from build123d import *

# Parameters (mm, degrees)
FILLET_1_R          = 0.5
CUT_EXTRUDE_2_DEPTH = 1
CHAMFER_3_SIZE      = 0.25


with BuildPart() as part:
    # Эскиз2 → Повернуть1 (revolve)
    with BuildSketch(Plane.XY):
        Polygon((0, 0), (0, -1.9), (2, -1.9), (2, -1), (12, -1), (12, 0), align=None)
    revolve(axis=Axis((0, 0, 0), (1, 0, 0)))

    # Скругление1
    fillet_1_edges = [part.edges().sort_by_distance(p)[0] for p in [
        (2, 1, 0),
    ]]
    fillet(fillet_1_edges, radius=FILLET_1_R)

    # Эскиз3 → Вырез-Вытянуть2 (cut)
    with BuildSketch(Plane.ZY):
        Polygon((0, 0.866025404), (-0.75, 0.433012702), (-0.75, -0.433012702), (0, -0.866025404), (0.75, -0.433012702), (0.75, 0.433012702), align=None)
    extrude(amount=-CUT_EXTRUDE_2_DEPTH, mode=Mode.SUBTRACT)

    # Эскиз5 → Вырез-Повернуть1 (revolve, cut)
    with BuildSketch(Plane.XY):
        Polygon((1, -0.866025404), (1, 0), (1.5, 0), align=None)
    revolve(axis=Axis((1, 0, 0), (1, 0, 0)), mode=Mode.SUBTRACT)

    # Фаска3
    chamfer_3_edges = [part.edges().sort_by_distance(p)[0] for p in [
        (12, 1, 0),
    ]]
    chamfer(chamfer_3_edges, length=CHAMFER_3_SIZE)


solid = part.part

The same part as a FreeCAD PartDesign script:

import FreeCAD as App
import Part
import Sketcher
from FreeCAD import Vector
Q = App.Units.Quantity


def edges_at(feature, points):
    """Names of the edges that pass closest to the given points."""
    edges = feature.Shape.Edges
    near = lambda p: min(range(len(edges)), key=lambda i: edges[i].distToShape(Part.Vertex(*p))[0])
    return sorted({f"Edge{near(p) + 1}" for p in points})


def add_polygon(sketch, points):
    """Adds a closed chain of lines whose ends are joined by coincident constraints."""
    first, n = sketch.GeometryCount, len(points)
    for a, b in zip(points, points[1:] + points[:1]):
        sketch.addGeometry(Part.LineSegment(App.Vector(*a, 0), App.Vector(*b, 0)), False)
    for i in range(n):
        sketch.addConstraint(Sketcher.Constraint("Coincident", first + i, 2, first + (i + 1) % n, 1))

doc = App.newDocument("Part")
params = doc.addObject("Spreadsheet::Sheet", "Params")
for row, (alias, value) in enumerate([
    ("sketch1_width", "2 mm"),
    ("sketch1_width2", "10 mm"),
    ("sketch1_height", "1 mm"),
    ("sketch1_height2", "1.9 mm"),
    ("revolution_angle", "360 deg"),
    ("fillet_radius", "0.5 mm"),
    ("pocket1_length", "1 mm"),
    ("sketch3_length", "1 mm"),
    ("groove_angle", "360 deg"),
    ("chamfer_size", "0.25 mm"),
], start=1):
    params.set(f"A{row}", alias)
    params.set(f"B{row}", "=" + value)
    params.setAlias(f"B{row}", alias)

body = doc.addObject("PartDesign::Body", "Body")

# Sketch on XY plane
sketch1 = body.newObject("Sketcher::SketchObject", "Sketch")
sketch1.AttachmentSupport = (doc.getObject("XY_Plane"), [""])
sketch1.MapMode = "FlatFace"
add_polygon(sketch1, [(0, 0), (0, -1.9), (2, -1.9), (2, -1), (12, -1), (12, 0)])  # lines 0-5
sketch1.addConstraint([
    Sketcher.Constraint("Vertical", 0),
    Sketcher.Constraint("Horizontal", 1),
    Sketcher.Constraint("Vertical", 2),
    Sketcher.Constraint("Horizontal", 3),
    Sketcher.Constraint("Vertical", 4),
    Sketcher.Constraint("Horizontal", 5),
    Sketcher.Constraint("Coincident", 5, 2, -1, 1),
    Sketcher.Constraint("DistanceX", 1, 1, 1, 2, 2.0),
    Sketcher.Constraint("DistanceX", 3, 1, 3, 2, 10.0),
    Sketcher.Constraint("DistanceY", 4, 1, 4, 2, 1.0),
    Sketcher.Constraint("DistanceY", 0, 2, 0, 1, 1.9),
])
sketch1.setExpression("Constraints[13]", "Params.sketch1_width")
sketch1.setExpression("Constraints[14]", "Params.sketch1_width2")
sketch1.setExpression("Constraints[15]", "Params.sketch1_height")
sketch1.setExpression("Constraints[16]", "Params.sketch1_height2")
revolution = body.newObject("PartDesign::Revolution", "Revolution")
revolution.Profile = sketch1
revolution.ReferenceAxis = (sketch1, ["H_Axis"])
revolution.setExpression("Angle", "Params.revolution_angle")
doc.recompute()

fillet = body.newObject("PartDesign::Fillet", "Fillet")
fillet.Base = (revolution, edges_at(revolution, [(2, 1, 0)]))
fillet.setExpression("Radius", "Params.fillet_radius")

# Sketch on YZ plane
sketch2 = body.newObject("Sketcher::SketchObject", "Sketch001")
sketch2.AttachmentSupport = (doc.getObject("YZ_Plane"), [""])
sketch2.MapMode = "FlatFace"
add_polygon(sketch2, [(0.9, 0), (0.4, -0.8), (-0.4, -0.8), (-0.9, 0), (-0.4, 0.8), (0.4, 0.8)])  # lines 0-5
sketch2.addConstraint([
    Sketcher.Constraint("Horizontal", 1),
    Sketcher.Constraint("Horizontal", 4),
    Sketcher.Constraint("Symmetric", 0, 2, 3, 2, -1, 1),
    Sketcher.Constraint("Symmetric", 2, 2, 5, 2, -1, 1),
    Sketcher.Constraint("PointOnObject", 2, 2, -1),
    Sketcher.Constraint("Parallel", 2, 5),
    Sketcher.Constraint("Vertical", 1, 2, 3, 2),
    Sketcher.Constraint("Angle", 0, Q("-120 deg")),
    Sketcher.Constraint("DistanceY", 1, 2, 3, 2, 1.5),
    Sketcher.Constraint("DistanceX", 1, 2, 1, 1, 0.866025),
])
pocket1 = body.newObject("PartDesign::Pocket", "Pocket")
pocket1.Profile = sketch2
pocket1.setExpression("Length", "Params.pocket1_length")
pocket1.Reversed = True

# Sketch on XY plane
sketch3 = body.newObject("Sketcher::SketchObject", "Sketch002")
sketch3.AttachmentSupport = (doc.getObject("XY_Plane"), [""])
sketch3.MapMode = "FlatFace"
add_polygon(sketch3, [(1, 0), (1, -0.9), (1.5, 0)])  # lines 0-2
sketch3.addConstraint([
    Sketcher.Constraint("Vertical", 0),
    Sketcher.Constraint("Horizontal", 2),
    Sketcher.Constraint("PointOnObject", 1, 2, -1),
    Sketcher.Constraint("Angle", 1, Q("60 deg")),
    Sketcher.Constraint("Distance", 1, 1.0),
    Sketcher.Constraint("DistanceX", -1, 1, 0, 2, 1.0),
])
sketch3.setExpression("Constraints[7]", "Params.sketch3_length")
groove = body.newObject("PartDesign::Groove", "Groove")
groove.Profile = sketch3
groove.ReferenceAxis = (sketch3, ["H_Axis"])
groove.setExpression("Angle", "Params.groove_angle")
doc.recompute()

chamfer = body.newObject("PartDesign::Chamfer", "Chamfer")
chamfer.Base = (groove, edges_at(groove, [(12, 1, 0)]))
chamfer.setExpression("Size", "Params.chamfer_size")

doc.recompute()
